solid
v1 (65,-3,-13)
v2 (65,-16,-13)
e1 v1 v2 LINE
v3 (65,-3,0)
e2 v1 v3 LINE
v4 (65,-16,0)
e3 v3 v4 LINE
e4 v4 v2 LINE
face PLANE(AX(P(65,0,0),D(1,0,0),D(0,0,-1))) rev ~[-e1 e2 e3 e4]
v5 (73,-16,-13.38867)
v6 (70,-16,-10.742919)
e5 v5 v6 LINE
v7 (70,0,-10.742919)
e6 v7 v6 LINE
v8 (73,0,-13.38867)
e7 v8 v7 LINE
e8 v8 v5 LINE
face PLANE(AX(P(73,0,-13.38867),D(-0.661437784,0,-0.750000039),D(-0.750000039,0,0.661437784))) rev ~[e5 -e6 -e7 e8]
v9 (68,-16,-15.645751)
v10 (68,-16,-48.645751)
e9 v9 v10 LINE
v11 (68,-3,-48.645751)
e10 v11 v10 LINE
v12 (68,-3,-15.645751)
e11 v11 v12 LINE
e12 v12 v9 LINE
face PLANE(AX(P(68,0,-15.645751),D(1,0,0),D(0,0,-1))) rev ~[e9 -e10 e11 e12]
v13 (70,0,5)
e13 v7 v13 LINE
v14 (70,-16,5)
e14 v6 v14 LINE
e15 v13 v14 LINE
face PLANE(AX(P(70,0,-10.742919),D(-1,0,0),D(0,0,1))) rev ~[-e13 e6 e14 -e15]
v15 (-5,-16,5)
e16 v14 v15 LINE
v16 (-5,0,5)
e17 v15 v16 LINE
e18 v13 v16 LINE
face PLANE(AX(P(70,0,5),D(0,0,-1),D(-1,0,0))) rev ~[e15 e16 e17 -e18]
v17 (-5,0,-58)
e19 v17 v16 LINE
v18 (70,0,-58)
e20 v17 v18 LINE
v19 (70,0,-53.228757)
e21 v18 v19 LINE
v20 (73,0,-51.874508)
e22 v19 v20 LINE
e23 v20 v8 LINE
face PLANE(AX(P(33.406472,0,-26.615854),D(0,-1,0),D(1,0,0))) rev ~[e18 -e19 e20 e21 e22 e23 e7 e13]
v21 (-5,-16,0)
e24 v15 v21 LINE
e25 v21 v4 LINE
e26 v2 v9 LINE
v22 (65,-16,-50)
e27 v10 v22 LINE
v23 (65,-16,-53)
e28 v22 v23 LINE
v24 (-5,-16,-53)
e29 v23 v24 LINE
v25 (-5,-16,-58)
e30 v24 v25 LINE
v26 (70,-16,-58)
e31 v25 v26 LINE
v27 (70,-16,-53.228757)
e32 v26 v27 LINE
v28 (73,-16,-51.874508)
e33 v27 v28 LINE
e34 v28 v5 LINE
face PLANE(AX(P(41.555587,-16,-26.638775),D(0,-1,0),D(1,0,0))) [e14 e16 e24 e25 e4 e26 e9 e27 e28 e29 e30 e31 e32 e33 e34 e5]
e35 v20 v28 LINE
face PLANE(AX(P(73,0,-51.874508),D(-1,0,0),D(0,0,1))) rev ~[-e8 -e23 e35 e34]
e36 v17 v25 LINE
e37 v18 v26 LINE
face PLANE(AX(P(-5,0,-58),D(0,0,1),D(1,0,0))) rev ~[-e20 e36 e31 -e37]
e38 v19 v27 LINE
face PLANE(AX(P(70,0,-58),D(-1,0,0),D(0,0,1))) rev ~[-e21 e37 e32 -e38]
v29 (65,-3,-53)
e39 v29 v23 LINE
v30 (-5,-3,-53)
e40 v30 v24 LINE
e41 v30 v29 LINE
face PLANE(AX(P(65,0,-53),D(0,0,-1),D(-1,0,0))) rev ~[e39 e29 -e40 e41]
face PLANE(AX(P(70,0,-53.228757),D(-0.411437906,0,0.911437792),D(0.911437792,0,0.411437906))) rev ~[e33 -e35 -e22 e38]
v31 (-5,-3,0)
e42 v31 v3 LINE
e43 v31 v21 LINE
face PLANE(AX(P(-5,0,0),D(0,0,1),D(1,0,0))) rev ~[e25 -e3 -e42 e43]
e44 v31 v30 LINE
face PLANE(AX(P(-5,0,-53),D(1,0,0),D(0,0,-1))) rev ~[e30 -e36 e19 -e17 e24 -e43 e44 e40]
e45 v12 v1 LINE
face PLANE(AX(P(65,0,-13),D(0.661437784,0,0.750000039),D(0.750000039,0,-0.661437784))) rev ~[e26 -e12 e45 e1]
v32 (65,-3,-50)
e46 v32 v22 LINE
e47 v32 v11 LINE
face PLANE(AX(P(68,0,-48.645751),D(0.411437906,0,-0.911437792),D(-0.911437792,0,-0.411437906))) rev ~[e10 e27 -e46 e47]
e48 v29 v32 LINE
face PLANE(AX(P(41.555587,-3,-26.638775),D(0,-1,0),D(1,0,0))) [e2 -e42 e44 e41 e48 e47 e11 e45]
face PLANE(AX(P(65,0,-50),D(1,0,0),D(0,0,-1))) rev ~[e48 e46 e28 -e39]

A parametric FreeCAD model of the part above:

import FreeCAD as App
import Part
import Sketcher

doc = App.newDocument("Part")
body = doc.addObject("PartDesign::Body", "Body")

sketch1 = doc.addObject("Sketcher::SketchObject", "Sketch")
body.addObject(sketch1)
sketch1.AttachmentSupport = (doc.XZ_Plane, [""])
sketch1.MapMode = "FlatFace"
sketch1.addGeometry(Part.LineSegment(App.Vector(-5, 0, 0), App.Vector(65, 0, 0)), False)
sketch1.addGeometry(Part.LineSegment(App.Vector(65, 0, 0), App.Vector(65, -13, 0)), False)
sketch1.addGeometry(Part.LineSegment(App.Vector(65, -13, 0), App.Vector(68, -15.645751, 0)), False)
sketch1.addGeometry(Part.LineSegment(App.Vector(68, -15.645751, 0), App.Vector(68, -48.645751, 0)), False)
sketch1.addGeometry(Part.LineSegment(App.Vector(68, -48.645751, 0), App.Vector(65, -50, 0)), False)
sketch1.addGeometry(Part.LineSegment(App.Vector(65, -50, 0), App.Vector(65, -53, 0)), False)
sketch1.addGeometry(Part.LineSegment(App.Vector(65, -53, 0), App.Vector(-5, -53, 0)), False)
sketch1.addGeometry(Part.LineSegment(App.Vector(-5, -53, 0), App.Vector(-5, -58, 0)), False)
sketch1.addGeometry(Part.LineSegment(App.Vector(-5, -58, 0), App.Vector(70, -58, 0)), False)
sketch1.addGeometry(Part.LineSegment(App.Vector(70, -58, 0), App.Vector(70, -53.228757, 0)), False)
sketch1.addGeometry(Part.LineSegment(App.Vector(70, -53.228757, 0), App.Vector(73, -51.874508, 0)), False)
sketch1.addGeometry(Part.LineSegment(App.Vector(73, -51.874508, 0), App.Vector(73, -13.38867, 0)), False)
sketch1.addGeometry(Part.LineSegment(App.Vector(73, -13.38867, 0), App.Vector(70, -10.742919, 0)), False)
sketch1.addGeometry(Part.LineSegment(App.Vector(70, -10.742919, 0), App.Vector(70, 5, 0)), False)
sketch1.addGeometry(Part.LineSegment(App.Vector(70, 5, 0), App.Vector(-5, 5, 0)), False)
sketch1.addGeometry(Part.LineSegment(App.Vector(-5, 5, 0), App.Vector(-5, 0, 0)), False)
sketch1.addConstraint(Sketcher.Constraint("Coincident", 0, 2, 1, 1))
sketch1.addConstraint(Sketcher.Constraint("Coincident", 1, 2, 2, 1))
sketch1.addConstraint(Sketcher.Constraint("Coincident", 2, 2, 3, 1))
sketch1.addConstraint(Sketcher.Constraint("Coincident", 3, 2, 4, 1))
sketch1.addConstraint(Sketcher.Constraint("Coincident", 4, 2, 5, 1))
sketch1.addConstraint(Sketcher.Constraint("Coincident", 5, 2, 6, 1))
sketch1.addConstraint(Sketcher.Constraint("Coincident", 6, 2, 7, 1))
sketch1.addConstraint(Sketcher.Constraint("Coincident", 7, 2, 8, 1))
sketch1.addConstraint(Sketcher.Constraint("Coincident", 8, 2, 9, 1))
sketch1.addConstraint(Sketcher.Constraint("Coincident", 9, 2, 10, 1))
sketch1.addConstraint(Sketcher.Constraint("Coincident", 10, 2, 11, 1))
sketch1.addConstraint(Sketcher.Constraint("Coincident", 11, 2, 12, 1))
sketch1.addConstraint(Sketcher.Constraint("Coincident", 12, 2, 13, 1))
sketch1.addConstraint(Sketcher.Constraint("Coincident", 13, 2, 14, 1))
sketch1.addConstraint(Sketcher.Constraint("Coincident", 14, 2, 15, 1))
sketch1.addConstraint(Sketcher.Constraint("Coincident", 15, 2, 0, 1))
sketch1.addConstraint(Sketcher.Constraint("Horizontal", 0))
sketch1.addConstraint(Sketcher.Constraint("Vertical", 1))
sketch1.addConstraint(Sketcher.Constraint("Vertical", 3))
sketch1.addConstraint(Sketcher.Constraint("Vertical", 5))
sketch1.addConstraint(Sketcher.Constraint("Horizontal", 6))
sketch1.addConstraint(Sketcher.Constraint("Vertical", 7))
sketch1.addConstraint(Sketcher.Constraint("Horizontal", 8))
sketch1.addConstraint(Sketcher.Constraint("Vertical", 9))
sketch1.addConstraint(Sketcher.Constraint("Vertical", 11))
sketch1.addConstraint(Sketcher.Constraint("Vertical", 13))
sketch1.addConstraint(Sketcher.Constraint("Horizontal", 14))
sketch1.addConstraint(Sketcher.Constraint("Vertical", 15))
sketch1.addConstraint(Sketcher.Constraint("PointOnObject", 0, 2, -1))
sketch1.addConstraint(Sketcher.Constraint("Parallel", 4, 10))
sketch1.addConstraint(Sketcher.Constraint("Parallel", 2, 12))
sketch1.addConstraint(Sketcher.Constraint("Vertical", 1, 2, 4, 2))
sketch1.addConstraint(Sketcher.Constraint("Vertical", 9, 2, 12, 2))
sketch1.addConstraint(Sketcher.Constraint("Vertical", 7, 2, 14, 2))
sketch1.addConstraint(Sketcher.Constraint("Equal", 7, 15))
sketch1.addConstraint(Sketcher.Constraint("Equal", 4, 10))
sketch1.addConstraint(Sketcher.Constraint("DistanceX", 0, 1, 0, 2, 70.0))
sketch1.addConstraint(Sketcher.Constraint("DistanceX", 8, 1, 8, 2, 75.0))
sketch1.addConstraint(Sketcher.Constraint("DistanceY", 1, 2, 1, 1, 13.0))
sketch1.addConstraint(Sketcher.Constraint("DistanceY", 3, 2, 3, 1, 33.0))
sketch1.addConstraint(Sketcher.Constraint("DistanceY", 5, 2, 5, 1, 3.0))
sketch1.addConstraint(Sketcher.Constraint("DistanceY", 7, 2, 7, 1, 5.0))
sketch1.addConstraint(Sketcher.Constraint("Distance", 2, 4.0))
sketch1.addConstraint(Sketcher.Constraint("DistanceX", -1, 1, 0, 2, 65.0))
sketch1.addConstraint(Sketcher.Constraint("DistanceX", -1, 1, 2, 2, 68.0))
sketch1.addConstraint(Sketcher.Constraint("DistanceY", 4, 2, -1, 1, 50.0))
sketch1.addConstraint(Sketcher.Constraint("DistanceY", 13, 1, 13, 2, 15.742919))
sketch1.addConstraint(Sketcher.Constraint("DistanceY", 9, 1, 9, 2, 4.771243))
pad1 = doc.addObject("PartDesign::Pad", "Pad")
body.addObject(pad1)
pad1.Profile = sketch1
pad1.Length = 16

sketch2 = doc.addObject("Sketcher::SketchObject", "Sketch001")
body.addObject(sketch2)
sketch2.AttachmentSupport = (doc.XZ_Plane, [""])
sketch2.MapMode = "FlatFace"
sketch2.addGeometry(Part.LineSegment(App.Vector(-5, -58, 0), App.Vector(70, -58, 0)), False)
sketch2.addGeometry(Part.LineSegment(App.Vector(70, -58, 0), App.Vector(70, -53.228757, 0)), False)
sketch2.addGeometry(Part.LineSegment(App.Vector(70, -53.228757, 0), App.Vector(73, -51.874508, 0)), False)
sketch2.addGeometry(Part.LineSegment(App.Vector(73, -51.874508, 0), App.Vector(73, -13.38867, 0)), False)
sketch2.addGeometry(Part.LineSegment(App.Vector(73, -13.38867, 0), App.Vector(70, -10.742919, 0)), False)
sketch2.addGeometry(Part.LineSegment(App.Vector(70, -10.742919, 0), App.Vector(70, 5, 0)), False)
sketch2.addGeometry(Part.LineSegment(App.Vector(70, 5, 0), App.Vector(-5, 5, 0)), False)
sketch2.addGeometry(Part.LineSegment(App.Vector(-5, 5, 0), App.Vector(-5, -58, 0)), False)
sketch2.addGeometry(Part.LineSegment(App.Vector(0, 0, 0), App.Vector(65, 0, 0)), False)
sketch2.addGeometry(Part.LineSegment(App.Vector(65, 0, 0), App.Vector(65, -13, 0)), False)
sketch2.addGeometry(Part.LineSegment(App.Vector(65, -13, 0), App.Vector(68, -15.645751, 0)), False)
sketch2.addGeometry(Part.LineSegment(App.Vector(68, -15.645751, 0), App.Vector(68, -48.645751, 0)), False)
sketch2.addGeometry(Part.LineSegment(App.Vector(68, -48.645751, 0), App.Vector(65, -50, 0)), False)
sketch2.addGeometry(Part.LineSegment(App.Vector(65, -50, 0), App.Vector(65, -53, 0)), False)
sketch2.addGeometry(Part.LineSegment(App.Vector(65, -53, 0), App.Vector(0, -53, 0)), False)
sketch2.addGeometry(Part.LineSegment(App.Vector(0, -53, 0), App.Vector(0, 0, 0)), False)
sketch2.addConstraint(Sketcher.Constraint("Coincident", 0, 2, 1, 1))
sketch2.addConstraint(Sketcher.Constraint("Coincident", 1, 2, 2, 1))
sketch2.addConstraint(Sketcher.Constraint("Coincident", 2, 2, 3, 1))
sketch2.addConstraint(Sketcher.Constraint("Coincident", 3, 2, 4, 1))
sketch2.addConstraint(Sketcher.Constraint("Coincident", 4, 2, 5, 1))
sketch2.addConstraint(Sketcher.Constraint("Coincident", 5, 2, 6, 1))
sketch2.addConstraint(Sketcher.Constraint("Coincident", 6, 2, 7, 1))
sketch2.addConstraint(Sketcher.Constraint("Coincident", 7, 2, 0, 1))
sketch2.addConstraint(Sketcher.Constraint("Coincident", 8, 2, 9, 1))
sketch2.addConstraint(Sketcher.Constraint("Coincident", 9, 2, 10, 1))
sketch2.addConstraint(Sketcher.Constraint("Coincident", 10, 2, 11, 1))
sketch2.addConstraint(Sketcher.Constraint("Coincident", 11, 2, 12, 1))
sketch2.addConstraint(Sketcher.Constraint("Coincident", 12, 2, 13, 1))
sketch2.addConstraint(Sketcher.Constraint("Coincident", 13, 2, 14, 1))
sketch2.addConstraint(Sketcher.Constraint("Coincident", 14, 2, 15, 1))
sketch2.addConstraint(Sketcher.Constraint("Coincident", 15, 2, 8, 1))
sketch2.addConstraint(Sketcher.Constraint("Horizontal", 0))
sketch2.addConstraint(Sketcher.Constraint("Vertical", 1))
sketch2.addConstraint(Sketcher.Constraint("Vertical", 3))
sketch2.addConstraint(Sketcher.Constraint("Vertical", 5))
sketch2.addConstraint(Sketcher.Constraint("Horizontal", 6))
sketch2.addConstraint(Sketcher.Constraint("Vertical", 7))
sketch2.addConstraint(Sketcher.Constraint("Horizontal", 8))
sketch2.addConstraint(Sketcher.Constraint("Vertical", 9))
sketch2.addConstraint(Sketcher.Constraint("Vertical", 11))
sketch2.addConstraint(Sketcher.Constraint("Vertical", 13))
sketch2.addConstraint(Sketcher.Constraint("Horizontal", 14))
sketch2.addConstraint(Sketcher.Constraint("Vertical", 15))
sketch2.addConstraint(Sketcher.Constraint("Coincident", 15, 2, -1, 1))
sketch2.addConstraint(Sketcher.Constraint("Parallel", 4, 10))
sketch2.addConstraint(Sketcher.Constraint("Parallel", 2, 12))
sketch2.addConstraint(Sketcher.Constraint("Vertical", 1, 2, 4, 2))
sketch2.addConstraint(Sketcher.Constraint("Vertical", 9, 2, 12, 2))
sketch2.addConstraint(Sketcher.Constraint("Equal", 4, 10))
sketch2.addConstraint(Sketcher.Constraint("DistanceX", 0, 1, 0, 2, 75.0))
sketch2.addConstraint(Sketcher.Constraint("DistanceX", 8, 1, 8, 2, 65.0))
sketch2.addConstraint(Sketcher.Constraint("DistanceY", 7, 2, 7, 1, 63.0))
sketch2.addConstraint(Sketcher.Constraint("DistanceY", 9, 2, 9, 1, 13.0))
sketch2.addConstraint(Sketcher.Constraint("DistanceY", 11, 2, 11, 1, 33.0))
sketch2.addConstraint(Sketcher.Constraint("DistanceY", 13, 2, 13, 1, 3.0))
sketch2.addConstraint(Sketcher.Constraint("DistanceY", 15, 1, 15, 2, 53.0))
sketch2.addConstraint(Sketcher.Constraint("Distance", 4, 4.0))
sketch2.addConstraint(Sketcher.Constraint("DistanceX", -1, 1, 0, 2, 70.0))
sketch2.addConstraint(Sketcher.Constraint("DistanceY", 0, 2, -1, 1, 58.0))
sketch2.addConstraint(Sketcher.Constraint("DistanceX", -1, 1, 2, 2, 73.0))
sketch2.addConstraint(Sketcher.Constraint("DistanceY", 5, 1, 5, 2, 15.742919))
sketch2.addConstraint(Sketcher.Constraint("DistanceY", 1, 1, 1, 2, 4.771243))
pad2 = doc.addObject("PartDesign::Pad", "Pad001")
body.addObject(pad2)
pad2.Profile = sketch2
pad2.Length = 1.7

sketch3 = doc.addObject("Sketcher::SketchObject", "Sketch002")
body.addObject(sketch3)
sketch3.AttachmentSupport = (doc.XZ_Plane, [""])
sketch3.MapMode = "FlatFace"
sketch3.addGeometry(Part.LineSegment(App.Vector(-5, -58, 0), App.Vector(70, -58, 0)), False)
sketch3.addGeometry(Part.LineSegment(App.Vector(70, -58, 0), App.Vector(70, -53.228757, 0)), False)
sketch3.addGeometry(Part.LineSegment(App.Vector(70, -53.228757, 0), App.Vector(73, -51.874508, 0)), False)
sketch3.addGeometry(Part.LineSegment(App.Vector(73, -51.874508, 0), App.Vector(73, -13.38867, 0)), False)
sketch3.addGeometry(Part.LineSegment(App.Vector(73, -13.38867, 0), App.Vector(70, -10.742919, 0)), False)
sketch3.addGeometry(Part.LineSegment(App.Vector(70, -10.742919, 0), App.Vector(70, 5, 0)), False)
sketch3.addGeometry(Part.LineSegment(App.Vector(70, 5, 0), App.Vector(-5, 5, 0)), False)
sketch3.addGeometry(Part.LineSegment(App.Vector(-5, 5, 0), App.Vector(-5, -58, 0)), False)
sketch3.addGeometry(Part.LineSegment(App.Vector(0, 0, 0), App.Vector(65, 0, 0)), False)
sketch3.addGeometry(Part.LineSegment(App.Vector(65, 0, 0), App.Vector(65, -13, 0)), False)
sketch3.addGeometry(Part.LineSegment(App.Vector(65, -13, 0), App.Vector(68, -15.645751, 0)), False)
sketch3.addGeometry(Part.LineSegment(App.Vector(68, -15.645751, 0), App.Vector(68, -48.645751, 0)), False)
sketch3.addGeometry(Part.LineSegment(App.Vector(68, -48.645751, 0), App.Vector(65, -50, 0)), False)
sketch3.addGeometry(Part.LineSegment(App.Vector(65, -50, 0), App.Vector(65, -53, 0)), False)
sketch3.addGeometry(Part.LineSegment(App.Vector(65, -53, 0), App.Vector(0, -53, 0)), False)
sketch3.addGeometry(Part.LineSegment(App.Vector(0, -53, 0), App.Vector(0, 0, 0)), False)
sketch3.addConstraint(Sketcher.Constraint("Coincident", 0, 2, 1, 1))
sketch3.addConstraint(Sketcher.Constraint("Coincident", 1, 2, 2, 1))
sketch3.addConstraint(Sketcher.Constraint("Coincident", 2, 2, 3, 1))
sketch3.addConstraint(Sketcher.Constraint("Coincident", 3, 2, 4, 1))
sketch3.addConstraint(Sketcher.Constraint("Coincident", 4, 2, 5, 1))
sketch3.addConstraint(Sketcher.Constraint("Coincident", 5, 2, 6, 1))
sketch3.addConstraint(Sketcher.Constraint("Coincident", 6, 2, 7, 1))
sketch3.addConstraint(Sketcher.Constraint("Coincident", 7, 2, 0, 1))
sketch3.addConstraint(Sketcher.Constraint("Coincident", 8, 2, 9, 1))
sketch3.addConstraint(Sketcher.Constraint("Coincident", 9, 2, 10, 1))
sketch3.addConstraint(Sketcher.Constraint("Coincident", 10, 2, 11, 1))
sketch3.addConstraint(Sketcher.Constraint("Coincident", 11, 2, 12, 1))
sketch3.addConstraint(Sketcher.Constraint("Coincident", 12, 2, 13, 1))
sketch3.addConstraint(Sketcher.Constraint("Coincident", 13, 2, 14, 1))
sketch3.addConstraint(Sketcher.Constraint("Coincident", 14, 2, 15, 1))
sketch3.addConstraint(Sketcher.Constraint("Coincident", 15, 2, 8, 1))
sketch3.addConstraint(Sketcher.Constraint("Horizontal", 0))
sketch3.addConstraint(Sketcher.Constraint("Vertical", 1))
sketch3.addConstraint(Sketcher.Constraint("Vertical", 3))
sketch3.addConstraint(Sketcher.Constraint("Vertical", 5))
sketch3.addConstraint(Sketcher.Constraint("Horizontal", 6))
sketch3.addConstraint(Sketcher.Constraint("Vertical", 7))
sketch3.addConstraint(Sketcher.Constraint("Horizontal", 8))
sketch3.addConstraint(Sketcher.Constraint("Vertical", 9))
sketch3.addConstraint(Sketcher.Constraint("Vertical", 11))
sketch3.addConstraint(Sketcher.Constraint("Vertical", 13))
sketch3.addConstraint(Sketcher.Constraint("Horizontal", 14))
sketch3.addConstraint(Sketcher.Constraint("Vertical", 15))
sketch3.addConstraint(Sketcher.Constraint("Coincident", 15, 2, -1, 1))
sketch3.addConstraint(Sketcher.Constraint("Parallel", 4, 10))
sketch3.addConstraint(Sketcher.Constraint("Parallel", 2, 12))
sketch3.addConstraint(Sketcher.Constraint("Vertical", 1, 2, 4, 2))
sketch3.addConstraint(Sketcher.Constraint("Vertical", 9, 2, 12, 2))
sketch3.addConstraint(Sketcher.Constraint("Equal", 4, 10))
sketch3.addConstraint(Sketcher.Constraint("DistanceX", 0, 1, 0, 2, 75.0))
sketch3.addConstraint(Sketcher.Constraint("DistanceX", 8, 1, 8, 2, 65.0))
sketch3.addConstraint(Sketcher.Constraint("DistanceY", 7, 2, 7, 1, 63.0))
sketch3.addConstraint(Sketcher.Constraint("DistanceY", 9, 2, 9, 1, 13.0))
sketch3.addConstraint(Sketcher.Constraint("DistanceY", 11, 2, 11, 1, 33.0))
sketch3.addConstraint(Sketcher.Constraint("DistanceY", 13, 2, 13, 1, 3.0))
sketch3.addConstraint(Sketcher.Constraint("DistanceY", 15, 1, 15, 2, 53.0))
sketch3.addConstraint(Sketcher.Constraint("Distance", 4, 4.0))
sketch3.addConstraint(Sketcher.Constraint("DistanceX", -1, 1, 0, 2, 70.0))
sketch3.addConstraint(Sketcher.Constraint("DistanceY", 0, 2, -1, 1, 58.0))
sketch3.addConstraint(Sketcher.Constraint("DistanceX", -1, 1, 2, 2, 73.0))
sketch3.addConstraint(Sketcher.Constraint("DistanceY", 5, 1, 5, 2, 15.742919))
sketch3.addConstraint(Sketcher.Constraint("DistanceY", 1, 1, 1, 2, 4.771243))
pad3 = doc.addObject("PartDesign::Pad", "Pad002")
body.addObject(pad3)
pad3.Profile = sketch3
pad3.Length = 3

sketch4 = doc.addObject("Sketcher::SketchObject", "Sketch003")
body.addObject(sketch4)
sketch4.AttachmentSupport = (doc.XZ_Plane, [""])
sketch4.MapMode = "FlatFace"
sketch4.addGeometry(Part.LineSegment(App.Vector(65, 0, 0), App.Vector(0, 0, 0)), False)
sketch4.addGeometry(Part.LineSegment(App.Vector(0, 0, 0), App.Vector(0, -53, 0)), False)
sketch4.addGeometry(Part.LineSegment(App.Vector(0, -53, 0), App.Vector(65, -53, 0)), False)
sketch4.addGeometry(Part.LineSegment(App.Vector(65, -53, 0), App.Vector(65, -50, 0)), False)
sketch4.addGeometry(Part.LineSegment(App.Vector(65, -50, 0), App.Vector(68, -48.645751, 0)), False)
sketch4.addGeometry(Part.LineSegment(App.Vector(68, -48.645751, 0), App.Vector(68, -15.645751, 0)), False)
sketch4.addGeometry(Part.LineSegment(App.Vector(68, -15.645751, 0), App.Vector(65, -13, 0)), False)
sketch4.addGeometry(Part.LineSegment(App.Vector(65, -13, 0), App.Vector(65, 0, 0)), False)
sketch4.addConstraint(Sketcher.Constraint("Coincident", 0, 2, 1, 1))
sketch4.addConstraint(Sketcher.Constraint("Coincident", 1, 2, 2, 1))
sketch4.addConstraint(Sketcher.Constraint("Coincident", 2, 2, 3, 1))
sketch4.addConstraint(Sketcher.Constraint("Coincident", 3, 2, 4, 1))
sketch4.addConstraint(Sketcher.Constraint("Coincident", 4, 2, 5, 1))
sketch4.addConstraint(Sketcher.Constraint("Coincident", 5, 2, 6, 1))
sketch4.addConstraint(Sketcher.Constraint("Coincident", 6, 2, 7, 1))
sketch4.addConstraint(Sketcher.Constraint("Coincident", 7, 2, 0, 1))
sketch4.addConstraint(Sketcher.Constraint("Horizontal", 0))
sketch4.addConstraint(Sketcher.Constraint("Vertical", 1))
sketch4.addConstraint(Sketcher.Constraint("Horizontal", 2))
sketch4.addConstraint(Sketcher.Constraint("Vertical", 3))
sketch4.addConstraint(Sketcher.Constraint("Vertical", 5))
sketch4.addConstraint(Sketcher.Constraint("Vertical", 7))
sketch4.addConstraint(Sketcher.Constraint("Coincident", 0, 2, -1, 1))
sketch4.addConstraint(Sketcher.Constraint("Vertical", 3, 2, 6, 2))
sketch4.addConstraint(Sketcher.Constraint("DistanceX", 0, 2, 0, 1, 65.0))
sketch4.addConstraint(Sketcher.Constraint("DistanceY", 1, 2, 1, 1, 53.0))
sketch4.addConstraint(Sketcher.Constraint("DistanceY", 3, 1, 3, 2, 3.0))
sketch4.addConstraint(Sketcher.Constraint("DistanceY", 5, 1, 5, 2, 33.0))
sketch4.addConstraint(Sketcher.Constraint("DistanceY", 7, 1, 7, 2, 13.0))
sketch4.addConstraint(Sketcher.Constraint("Distance", 6, 4.0))
sketch4.addConstraint(Sketcher.Constraint("DistanceX", -1, 1, 4, 2, 68.0))
pad4 = doc.addObject("PartDesign::Pad", "Pad003")
body.addObject(pad4)
pad4.Profile = sketch4
pad4.Length = 3

doc.recompute()
